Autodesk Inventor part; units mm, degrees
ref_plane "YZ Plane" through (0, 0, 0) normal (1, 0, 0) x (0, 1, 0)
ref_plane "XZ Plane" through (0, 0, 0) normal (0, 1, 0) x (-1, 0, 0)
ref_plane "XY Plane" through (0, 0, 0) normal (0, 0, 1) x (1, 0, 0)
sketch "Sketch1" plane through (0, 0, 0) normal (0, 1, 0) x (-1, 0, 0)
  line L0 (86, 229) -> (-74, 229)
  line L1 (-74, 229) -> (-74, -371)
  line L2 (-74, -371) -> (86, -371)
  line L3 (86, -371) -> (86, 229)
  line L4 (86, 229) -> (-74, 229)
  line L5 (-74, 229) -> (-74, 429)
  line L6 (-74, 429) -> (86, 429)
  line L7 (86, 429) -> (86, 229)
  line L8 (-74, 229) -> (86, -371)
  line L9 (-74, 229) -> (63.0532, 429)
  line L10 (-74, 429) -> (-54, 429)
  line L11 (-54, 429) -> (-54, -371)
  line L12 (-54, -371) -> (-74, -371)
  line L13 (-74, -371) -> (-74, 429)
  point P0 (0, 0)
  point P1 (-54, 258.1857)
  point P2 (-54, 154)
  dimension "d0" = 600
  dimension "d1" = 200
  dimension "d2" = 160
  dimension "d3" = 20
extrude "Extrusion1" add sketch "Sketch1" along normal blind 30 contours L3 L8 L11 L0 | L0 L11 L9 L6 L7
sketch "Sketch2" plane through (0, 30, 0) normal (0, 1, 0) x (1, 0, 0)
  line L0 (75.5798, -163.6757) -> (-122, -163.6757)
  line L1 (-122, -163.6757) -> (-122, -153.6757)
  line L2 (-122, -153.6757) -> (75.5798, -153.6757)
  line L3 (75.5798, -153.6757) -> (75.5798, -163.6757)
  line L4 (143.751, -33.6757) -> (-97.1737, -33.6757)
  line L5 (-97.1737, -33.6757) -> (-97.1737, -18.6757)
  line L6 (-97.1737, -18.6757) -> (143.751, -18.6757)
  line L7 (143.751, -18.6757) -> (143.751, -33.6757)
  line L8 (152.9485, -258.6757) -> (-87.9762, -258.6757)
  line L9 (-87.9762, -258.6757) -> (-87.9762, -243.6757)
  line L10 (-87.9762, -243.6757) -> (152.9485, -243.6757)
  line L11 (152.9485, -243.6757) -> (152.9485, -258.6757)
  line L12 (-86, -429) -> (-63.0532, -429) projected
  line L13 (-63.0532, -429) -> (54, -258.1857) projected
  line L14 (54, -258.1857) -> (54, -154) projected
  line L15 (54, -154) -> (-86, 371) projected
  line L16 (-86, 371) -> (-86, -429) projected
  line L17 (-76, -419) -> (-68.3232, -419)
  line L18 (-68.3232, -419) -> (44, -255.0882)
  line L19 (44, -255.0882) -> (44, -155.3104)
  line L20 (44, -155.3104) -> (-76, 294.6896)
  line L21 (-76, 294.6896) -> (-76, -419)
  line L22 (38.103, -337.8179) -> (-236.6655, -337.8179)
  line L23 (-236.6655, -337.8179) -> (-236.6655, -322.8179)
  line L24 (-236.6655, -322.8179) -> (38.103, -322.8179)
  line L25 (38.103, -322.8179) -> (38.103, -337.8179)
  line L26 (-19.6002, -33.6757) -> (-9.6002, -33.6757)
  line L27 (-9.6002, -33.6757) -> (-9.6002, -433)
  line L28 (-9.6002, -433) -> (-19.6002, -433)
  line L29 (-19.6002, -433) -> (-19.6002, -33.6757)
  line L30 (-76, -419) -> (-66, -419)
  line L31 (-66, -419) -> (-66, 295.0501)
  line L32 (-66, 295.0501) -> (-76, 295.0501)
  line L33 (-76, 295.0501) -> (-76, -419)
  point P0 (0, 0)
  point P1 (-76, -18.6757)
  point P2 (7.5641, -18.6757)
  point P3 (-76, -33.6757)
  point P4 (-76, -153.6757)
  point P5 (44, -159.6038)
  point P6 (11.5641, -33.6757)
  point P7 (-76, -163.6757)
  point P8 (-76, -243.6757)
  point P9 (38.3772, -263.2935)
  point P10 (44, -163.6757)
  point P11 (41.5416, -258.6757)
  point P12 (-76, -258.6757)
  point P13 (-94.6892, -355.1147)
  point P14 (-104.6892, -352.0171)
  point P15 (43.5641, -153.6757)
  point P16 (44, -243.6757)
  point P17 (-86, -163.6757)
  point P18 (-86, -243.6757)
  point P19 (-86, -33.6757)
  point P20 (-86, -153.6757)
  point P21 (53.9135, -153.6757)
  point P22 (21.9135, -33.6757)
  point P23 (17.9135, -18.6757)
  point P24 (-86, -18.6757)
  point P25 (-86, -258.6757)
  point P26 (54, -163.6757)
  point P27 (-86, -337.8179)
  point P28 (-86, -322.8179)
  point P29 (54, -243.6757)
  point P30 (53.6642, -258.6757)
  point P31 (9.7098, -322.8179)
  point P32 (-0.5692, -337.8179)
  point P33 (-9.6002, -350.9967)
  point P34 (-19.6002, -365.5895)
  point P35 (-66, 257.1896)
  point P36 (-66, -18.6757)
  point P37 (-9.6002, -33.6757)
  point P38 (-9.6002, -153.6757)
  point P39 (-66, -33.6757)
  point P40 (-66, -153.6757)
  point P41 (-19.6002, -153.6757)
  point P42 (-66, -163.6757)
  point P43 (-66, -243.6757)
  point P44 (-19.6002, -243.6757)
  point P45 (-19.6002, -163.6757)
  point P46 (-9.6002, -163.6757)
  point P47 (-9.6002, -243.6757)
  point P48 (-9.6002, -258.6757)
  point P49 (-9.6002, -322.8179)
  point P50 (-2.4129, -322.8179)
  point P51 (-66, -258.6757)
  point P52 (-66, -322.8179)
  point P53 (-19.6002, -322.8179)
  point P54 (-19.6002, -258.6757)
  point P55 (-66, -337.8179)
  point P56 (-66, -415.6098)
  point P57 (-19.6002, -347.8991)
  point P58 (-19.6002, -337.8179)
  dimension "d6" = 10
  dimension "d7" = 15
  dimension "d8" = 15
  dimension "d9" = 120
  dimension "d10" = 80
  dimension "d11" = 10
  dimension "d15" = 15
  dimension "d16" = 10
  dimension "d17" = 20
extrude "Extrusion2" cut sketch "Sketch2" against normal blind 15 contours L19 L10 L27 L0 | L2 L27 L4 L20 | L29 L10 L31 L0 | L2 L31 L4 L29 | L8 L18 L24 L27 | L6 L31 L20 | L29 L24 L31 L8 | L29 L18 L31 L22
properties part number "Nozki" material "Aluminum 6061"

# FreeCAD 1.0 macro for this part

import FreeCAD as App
import Part
import Sketcher

V = App.Vector
Q = App.Units.Quantity

doc = App.newDocument("Part")
body = doc.addObject("PartDesign::Body", "Body")

sketch1 = body.newObject("Sketcher::SketchObject", "Sketch")
sketch1.AttachmentSupport = (doc.getObject("XZ_Plane"), [""])
sketch1.MapMode = "FlatFace"
sketch1.addGeometry(Part.LineSegment(V(-86, -371, 0), V(-86, 429, 0)), False)
sketch1.addGeometry(Part.LineSegment(V(-86, 429, 0), V(-63, 429, 0)), False)
sketch1.addGeometry(Part.LineSegment(V(-63, 429, 0), V(54, 258, 0)), False)
sketch1.addGeometry(Part.LineSegment(V(54, 258, 0), V(54, 154, 0)), False)
sketch1.addGeometry(Part.LineSegment(V(54, 154, 0), V(-86, -371, 0)), False)
sketch1.addConstraint(Sketcher.Constraint("Coincident", 0, 2, 1, 1))
sketch1.addConstraint(Sketcher.Constraint("Coincident", 1, 2, 2, 1))
sketch1.addConstraint(Sketcher.Constraint("Coincident", 2, 2, 3, 1))
sketch1.addConstraint(Sketcher.Constraint("Coincident", 3, 2, 4, 1))
sketch1.addConstraint(Sketcher.Constraint("Coincident", 4, 2, 0, 1))
sketch1.addConstraint(Sketcher.Constraint("Vertical", 0))
sketch1.addConstraint(Sketcher.Constraint("Horizontal", 1))
sketch1.addConstraint(Sketcher.Constraint("Vertical", 3))
sketch1.addConstraint(Sketcher.Constraint("DistanceY", 0, 1, 0, 2, Q("800 mm")))
sketch1.addConstraint(Sketcher.Constraint("DistanceX", 0, 2, -1, 1, Q("86 mm")))
sketch1.addConstraint(Sketcher.Constraint("DistanceY", -1, 1, 0, 2, Q("429 mm")))
sketch1.addConstraint(Sketcher.Constraint("DistanceX", -1, 1, 2, 2, Q("54 mm")))
sketch1.addConstraint(Sketcher.Constraint("DistanceY", -1, 1, 3, 2, Q("154 mm")))
sketch1.addConstraint(Sketcher.Constraint("DistanceX", 1, 1, 1, 2, Q("22.9468 mm")))
sketch1.addConstraint(Sketcher.Constraint("DistanceY", 3, 2, 3, 1, Q("104.1857 mm")))
pad1 = body.newObject("PartDesign::Pad", "Pad")
pad1.Profile = sketch1
pad1.Length = 30
pad1.Reversed = True

sketch2 = body.newObject("Sketcher::SketchObject", "Sketch001")
sketch2.AttachmentSupport = (doc.getObject("XZ_Plane"), [""])
sketch2.MapMode = "FlatFace"
sketch2.AttachmentOffset = App.Placement(V(0, 0, -30), App.Rotation())
sketch2.addGeometry(Part.LineSegment(V(44, 244, 0), V(44, 164, 0)), False)
sketch2.addGeometry(Part.LineSegment(V(44, 164, 0), V(-10, 164, 0)), False)
sketch2.addGeometry(Part.LineSegment(V(-10, 164, 0), V(-10, 244, 0)), False)
sketch2.addGeometry(Part.LineSegment(V(-10, 244, 0), V(44, 244, 0)), False)
sketch2.addGeometry(Part.LineSegment(V(-10, 154, 0), V(44, 154, 0)), False)
sketch2.addGeometry(Part.LineSegment(V(44, 154, 0), V(12, 34, 0)), False)
sketch2.addGeometry(Part.LineSegment(V(12, 34, 0), V(-10, 34, 0)), False)
sketch2.addGeometry(Part.LineSegment(V(-10, 34, 0), V(-10, 154, 0)), False)
sketch2.addGeometry(Part.LineSegment(V(-20, 244, 0), V(-20, 164, 0)), False)
sketch2.addGeometry(Part.LineSegment(V(-20, 164, 0), V(-66, 164, 0)), False)
sketch2.addGeometry(Part.LineSegment(V(-66, 164, 0), V(-66, 244, 0)), False)
sketch2.addGeometry(Part.LineSegment(V(-66, 244, 0), V(-20, 244, 0)), False)
sketch2.addGeometry(Part.LineSegment(V(-66, 154, 0), V(-20, 154, 0)), False)
sketch2.addGeometry(Part.LineSegment(V(-20, 154, 0), V(-20, 34, 0)), False)
sketch2.addGeometry(Part.LineSegment(V(-20, 34, 0), V(-66, 34, 0)), False)
sketch2.addGeometry(Part.LineSegment(V(-66, 34, 0), V(-66, 154, 0)), False)
sketch2.addGeometry(Part.LineSegment(V(42, 259, 0), V(-10, 259, 0)), False)
sketch2.addGeometry(Part.LineSegment(V(-10, 259, 0), V(-10, 323, 0)), False)
sketch2.addGeometry(Part.LineSegment(V(-10, 323, 0), V(-2, 323, 0)), False)
sketch2.addGeometry(Part.LineSegment(V(-2, 323, 0), V(42, 259, 0)), False)
sketch2.addGeometry(Part.LineSegment(V(-66, 19, 0), V(8, 19, 0)), False)
sketch2.addGeometry(Part.LineSegment(V(8, 19, 0), V(-66, -257, 0)), False)
sketch2.addGeometry(Part.LineSegment(V(-66, -257, 0), V(-66, 19, 0)), False)
sketch2.addGeometry(Part.LineSegment(V(-20, 323, 0), V(-20, 259, 0)), False)
sketch2.addGeometry(Part.LineSegment(V(-20, 259, 0), V(-66, 259, 0)), False)
sketch2.addGeometry(Part.LineSegment(V(-66, 259, 0), V(-66, 323, 0)), False)
sketch2.addGeometry(Part.LineSegment(V(-66, 323, 0), V(-20, 323, 0)), False)
sketch2.addGeometry(Part.LineSegment(V(-20, 348, 0), V(-20, 338, 0)), False)
sketch2.addGeometry(Part.LineSegment(V(-20, 338, 0), V(-66, 338, 0)), False)
sketch2.addGeometry(Part.LineSegment(V(-66, 338, 0), V(-66, 416, 0)), False)
sketch2.addGeometry(Part.LineSegment(V(-66, 416, 0), V(-20, 348, 0)), False)
sketch2.addConstraint(Sketcher.Constraint("Coincident", 0, 2, 1, 1))
sketch2.addConstraint(Sketcher.Constraint("Coincident", 1, 2, 2, 1))
sketch2.addConstraint(Sketcher.Constraint("Coincident", 2, 2, 3, 1))
sketch2.addConstraint(Sketcher.Constraint("Coincident", 3, 2, 0, 1))
sketch2.addConstraint(Sketcher.Constraint("Coincident", 4, 2, 5, 1))
sketch2.addConstraint(Sketcher.Constraint("Coincident", 5, 2, 6, 1))
sketch2.addConstraint(Sketcher.Constraint("Coincident", 6, 2, 7, 1))
sketch2.addConstraint(Sketcher.Constraint("Coincident", 7, 2, 4, 1))
sketch2.addConstraint(Sketcher.Constraint("Coincident", 8, 2, 9, 1))
sketch2.addConstraint(Sketcher.Constraint("Coincident", 9, 2, 10, 1))
sketch2.addConstraint(Sketcher.Constraint("Coincident", 10, 2, 11, 1))
sketch2.addConstraint(Sketcher.Constraint("Coincident", 11, 2, 8, 1))
sketch2.addConstraint(Sketcher.Constraint("Coincident", 12, 2, 13, 1))
sketch2.addConstraint(Sketcher.Constraint("Coincident", 13, 2, 14, 1))
sketch2.addConstraint(Sketcher.Constraint("Coincident", 14, 2, 15, 1))
sketch2.addConstraint(Sketcher.Constraint("Coincident", 15, 2, 12, 1))
sketch2.addConstraint(Sketcher.Constraint("Coincident", 16, 2, 17, 1))
sketch2.addConstraint(Sketcher.Constraint("Coincident", 17, 2, 18, 1))
sketch2.addConstraint(Sketcher.Constraint("Coincident", 18, 2, 19, 1))
sketch2.addConstraint(Sketcher.Constraint("Coincident", 19, 2, 16, 1))
sketch2.addConstraint(Sketcher.Constraint("Coincident", 20, 2, 21, 1))
sketch2.addConstraint(Sketcher.Constraint("Coincident", 21, 2, 22, 1))
sketch2.addConstraint(Sketcher.Constraint("Coincident", 22, 2, 20, 1))
sketch2.addConstraint(Sketcher.Constraint("Coincident", 23, 2, 24, 1))
sketch2.addConstraint(Sketcher.Constraint("Coincident", 24, 2, 25, 1))
sketch2.addConstraint(Sketcher.Constraint("Coincident", 25, 2, 26, 1))
sketch2.addConstraint(Sketcher.Constraint("Coincident", 26, 2, 23, 1))
sketch2.addConstraint(Sketcher.Constraint("Coincident", 27, 2, 28, 1))
sketch2.addConstraint(Sketcher.Constraint("Coincident", 28, 2, 29, 1))
sketch2.addConstraint(Sketcher.Constraint("Coincident", 29, 2, 30, 1))
sketch2.addConstraint(Sketcher.Constraint("Coincident", 30, 2, 27, 1))
sketch2.addConstraint(Sketcher.Constraint("Vertical", 0))
sketch2.addConstraint(Sketcher.Constraint("Horizontal", 1))
sketch2.addConstraint(Sketcher.Constraint("Vertical", 2))
sketch2.addConstraint(Sketcher.Constraint("Horizontal", 3))
sketch2.addConstraint(Sketcher.Constraint("Horizontal", 4))
sketch2.addConstraint(Sketcher.Constraint("Horizontal", 6))
sketch2.addConstraint(Sketcher.Constraint("Vertical", 7))
sketch2.addConstraint(Sketcher.Constraint("Vertical", 8))
sketch2.addConstraint(Sketcher.Constraint("Horizontal", 9))
sketch2.addConstraint(Sketcher.Constraint("Vertical", 10))
sketch2.addConstraint(Sketcher.Constraint("Horizontal", 11))
sketch2.addConstraint(Sketcher.Constraint("Horizontal", 12))
sketch2.addConstraint(Sketcher.Constraint("Vertical", 13))
sketch2.addConstraint(Sketcher.Constraint("Horizontal", 14))
sketch2.addConstraint(Sketcher.Constraint("Vertical", 15))
sketch2.addConstraint(Sketcher.Constraint("Horizontal", 16))
sketch2.addConstraint(Sketcher.Constraint("Vertical", 17))
sketch2.addConstraint(Sketcher.Constraint("Horizontal", 18))
sketch2.addConstraint(Sketcher.Constraint("Horizontal", 20))
sketch2.addConstraint(Sketcher.Constraint("Vertical", 22))
sketch2.addConstraint(Sketcher.Constraint("Vertical", 23))
sketch2.addConstraint(Sketcher.Constraint("Horizontal", 24))
sketch2.addConstraint(Sketcher.Constraint("Vertical", 25))
sketch2.addConstraint(Sketcher.Constraint("Horizontal", 26))
sketch2.addConstraint(Sketcher.Constraint("Vertical", 27))
sketch2.addConstraint(Sketcher.Constraint("Horizontal", 28))
sketch2.addConstraint(Sketcher.Constraint("Vertical", 29))
sketch2.addConstraint(Sketcher.Constraint("Parallel", 5, 21))
sketch2.addConstraint(Sketcher.Constraint("Parallel", 19, 30))
sketch2.addConstraint(Sketcher.Constraint("Horizontal", 1, 2, 8, 2))
sketch2.addConstraint(Sketcher.Constraint("Horizontal", 3, 2, 10, 2))
sketch2.addConstraint(Sketcher.Constraint("Horizontal", 7, 2, 12, 2))
sketch2.addConstraint(Sketcher.Constraint("Horizontal", 6, 2, 13, 2))
sketch2.addConstraint(Sketcher.Constraint("Horizontal", 19, 2, 23, 2))
sketch2.addConstraint(Sketcher.Constraint("Horizontal", 18, 2, 25, 2))
sketch2.addConstraint(Sketcher.Constraint("Vertical", 2, 2, 6, 2))
sketch2.addConstraint(Sketcher.Constraint("Vertical", 11, 2, 12, 2))
sketch2.addConstraint(Sketcher.Constraint("Vertical", 10, 2, 14, 2))
sketch2.addConstraint(Sketcher.Constraint("Vertical", 7, 2, 16, 2))
sketch2.addConstraint(Sketcher.Constraint("Vertical", 15, 2, 21, 2))
sketch2.addConstraint(Sketcher.Constraint("Vertical", 13, 2, 23, 2))
sketch2.addConstraint(Sketcher.Constraint("Vertical", 22, 2, 24, 2))
sketch2.addConstraint(Sketcher.Constraint("Vertical", 26, 2, 27, 2))
sketch2.addConstraint(Sketcher.Constraint("Vertical", 25, 2, 28, 2))
sketch2.addConstraint(Sketcher.Constraint("DistanceY", 0, 2, 0, 1, Q("80 mm")))
sketch2.addConstraint(Sketcher.Constraint("DistanceY", 7, 1, 7, 2, Q("120 mm")))
sketch2.addConstraint(Sketcher.Constraint("DistanceY", 4, 2, 0, 2, Q("10 mm")))
sketch2.addConstraint(Sketcher.Constraint("DistanceX", 8, 2, 1, 2, Q("10 mm")))
sketch2.addConstraint(Sketcher.Constraint("DistanceY", 2, 2, 16, 2, Q("15 mm")))
sketch2.addConstraint(Sketcher.Constraint("DistanceY", 20, 2, 5, 2, Q("15 mm")))
sketch2.addConstraint(Sketcher.Constraint("DistanceY", 26, 2, 27, 2, Q("15 mm")))
sketch2.addConstraint(Sketcher.Constraint("DistanceX", -1, 1, 0, 2, Q("44 mm")))
sketch2.addConstraint(Sketcher.Constraint("DistanceX", 9, 2, -1, 1, Q("66 mm")))
sketch2.addConstraint(Sketcher.Constraint("DistanceX", 5, 2, 4, 2, Q("32 mm")))
sketch2.addConstraint(Sketcher.Constraint("DistanceX", 20, 2, 5, 2, Q("4 mm")))
sketch2.addConstraint(Sketcher.Constraint("DistanceX", 20, 1, 20, 2, Q("73.564 mm")))
sketch2.addConstraint(Sketcher.Constraint("DistanceY", 29, 1, 29, 2, Q("77.792 mm")))
sketch2.addConstraint(Sketcher.Constraint("DistanceX", 1, 2, 1, 1, Q("53.6002 mm")))
sketch2.addConstraint(Sketcher.Constraint("DistanceX", 16, 2, 16, 1, Q("51.1418 mm")))
sketch2.addConstraint(Sketcher.Constraint("DistanceX", 18, 1, 18, 2, Q("7.1873 mm")))
sketch2.addConstraint(Sketcher.Constraint("DistanceY", 17, 1, 17, 2, Q("64.1422 mm")))
sketch2.addConstraint(Sketcher.Constraint("DistanceY", -1, 1, 17, 2, Q("322.818 mm")))
pocket1 = body.newObject("PartDesign::Pocket", "Pocket")
pocket1.Profile = sketch2
pocket1.Length = 15
pocket1.Reversed = True

doc.recompute()
